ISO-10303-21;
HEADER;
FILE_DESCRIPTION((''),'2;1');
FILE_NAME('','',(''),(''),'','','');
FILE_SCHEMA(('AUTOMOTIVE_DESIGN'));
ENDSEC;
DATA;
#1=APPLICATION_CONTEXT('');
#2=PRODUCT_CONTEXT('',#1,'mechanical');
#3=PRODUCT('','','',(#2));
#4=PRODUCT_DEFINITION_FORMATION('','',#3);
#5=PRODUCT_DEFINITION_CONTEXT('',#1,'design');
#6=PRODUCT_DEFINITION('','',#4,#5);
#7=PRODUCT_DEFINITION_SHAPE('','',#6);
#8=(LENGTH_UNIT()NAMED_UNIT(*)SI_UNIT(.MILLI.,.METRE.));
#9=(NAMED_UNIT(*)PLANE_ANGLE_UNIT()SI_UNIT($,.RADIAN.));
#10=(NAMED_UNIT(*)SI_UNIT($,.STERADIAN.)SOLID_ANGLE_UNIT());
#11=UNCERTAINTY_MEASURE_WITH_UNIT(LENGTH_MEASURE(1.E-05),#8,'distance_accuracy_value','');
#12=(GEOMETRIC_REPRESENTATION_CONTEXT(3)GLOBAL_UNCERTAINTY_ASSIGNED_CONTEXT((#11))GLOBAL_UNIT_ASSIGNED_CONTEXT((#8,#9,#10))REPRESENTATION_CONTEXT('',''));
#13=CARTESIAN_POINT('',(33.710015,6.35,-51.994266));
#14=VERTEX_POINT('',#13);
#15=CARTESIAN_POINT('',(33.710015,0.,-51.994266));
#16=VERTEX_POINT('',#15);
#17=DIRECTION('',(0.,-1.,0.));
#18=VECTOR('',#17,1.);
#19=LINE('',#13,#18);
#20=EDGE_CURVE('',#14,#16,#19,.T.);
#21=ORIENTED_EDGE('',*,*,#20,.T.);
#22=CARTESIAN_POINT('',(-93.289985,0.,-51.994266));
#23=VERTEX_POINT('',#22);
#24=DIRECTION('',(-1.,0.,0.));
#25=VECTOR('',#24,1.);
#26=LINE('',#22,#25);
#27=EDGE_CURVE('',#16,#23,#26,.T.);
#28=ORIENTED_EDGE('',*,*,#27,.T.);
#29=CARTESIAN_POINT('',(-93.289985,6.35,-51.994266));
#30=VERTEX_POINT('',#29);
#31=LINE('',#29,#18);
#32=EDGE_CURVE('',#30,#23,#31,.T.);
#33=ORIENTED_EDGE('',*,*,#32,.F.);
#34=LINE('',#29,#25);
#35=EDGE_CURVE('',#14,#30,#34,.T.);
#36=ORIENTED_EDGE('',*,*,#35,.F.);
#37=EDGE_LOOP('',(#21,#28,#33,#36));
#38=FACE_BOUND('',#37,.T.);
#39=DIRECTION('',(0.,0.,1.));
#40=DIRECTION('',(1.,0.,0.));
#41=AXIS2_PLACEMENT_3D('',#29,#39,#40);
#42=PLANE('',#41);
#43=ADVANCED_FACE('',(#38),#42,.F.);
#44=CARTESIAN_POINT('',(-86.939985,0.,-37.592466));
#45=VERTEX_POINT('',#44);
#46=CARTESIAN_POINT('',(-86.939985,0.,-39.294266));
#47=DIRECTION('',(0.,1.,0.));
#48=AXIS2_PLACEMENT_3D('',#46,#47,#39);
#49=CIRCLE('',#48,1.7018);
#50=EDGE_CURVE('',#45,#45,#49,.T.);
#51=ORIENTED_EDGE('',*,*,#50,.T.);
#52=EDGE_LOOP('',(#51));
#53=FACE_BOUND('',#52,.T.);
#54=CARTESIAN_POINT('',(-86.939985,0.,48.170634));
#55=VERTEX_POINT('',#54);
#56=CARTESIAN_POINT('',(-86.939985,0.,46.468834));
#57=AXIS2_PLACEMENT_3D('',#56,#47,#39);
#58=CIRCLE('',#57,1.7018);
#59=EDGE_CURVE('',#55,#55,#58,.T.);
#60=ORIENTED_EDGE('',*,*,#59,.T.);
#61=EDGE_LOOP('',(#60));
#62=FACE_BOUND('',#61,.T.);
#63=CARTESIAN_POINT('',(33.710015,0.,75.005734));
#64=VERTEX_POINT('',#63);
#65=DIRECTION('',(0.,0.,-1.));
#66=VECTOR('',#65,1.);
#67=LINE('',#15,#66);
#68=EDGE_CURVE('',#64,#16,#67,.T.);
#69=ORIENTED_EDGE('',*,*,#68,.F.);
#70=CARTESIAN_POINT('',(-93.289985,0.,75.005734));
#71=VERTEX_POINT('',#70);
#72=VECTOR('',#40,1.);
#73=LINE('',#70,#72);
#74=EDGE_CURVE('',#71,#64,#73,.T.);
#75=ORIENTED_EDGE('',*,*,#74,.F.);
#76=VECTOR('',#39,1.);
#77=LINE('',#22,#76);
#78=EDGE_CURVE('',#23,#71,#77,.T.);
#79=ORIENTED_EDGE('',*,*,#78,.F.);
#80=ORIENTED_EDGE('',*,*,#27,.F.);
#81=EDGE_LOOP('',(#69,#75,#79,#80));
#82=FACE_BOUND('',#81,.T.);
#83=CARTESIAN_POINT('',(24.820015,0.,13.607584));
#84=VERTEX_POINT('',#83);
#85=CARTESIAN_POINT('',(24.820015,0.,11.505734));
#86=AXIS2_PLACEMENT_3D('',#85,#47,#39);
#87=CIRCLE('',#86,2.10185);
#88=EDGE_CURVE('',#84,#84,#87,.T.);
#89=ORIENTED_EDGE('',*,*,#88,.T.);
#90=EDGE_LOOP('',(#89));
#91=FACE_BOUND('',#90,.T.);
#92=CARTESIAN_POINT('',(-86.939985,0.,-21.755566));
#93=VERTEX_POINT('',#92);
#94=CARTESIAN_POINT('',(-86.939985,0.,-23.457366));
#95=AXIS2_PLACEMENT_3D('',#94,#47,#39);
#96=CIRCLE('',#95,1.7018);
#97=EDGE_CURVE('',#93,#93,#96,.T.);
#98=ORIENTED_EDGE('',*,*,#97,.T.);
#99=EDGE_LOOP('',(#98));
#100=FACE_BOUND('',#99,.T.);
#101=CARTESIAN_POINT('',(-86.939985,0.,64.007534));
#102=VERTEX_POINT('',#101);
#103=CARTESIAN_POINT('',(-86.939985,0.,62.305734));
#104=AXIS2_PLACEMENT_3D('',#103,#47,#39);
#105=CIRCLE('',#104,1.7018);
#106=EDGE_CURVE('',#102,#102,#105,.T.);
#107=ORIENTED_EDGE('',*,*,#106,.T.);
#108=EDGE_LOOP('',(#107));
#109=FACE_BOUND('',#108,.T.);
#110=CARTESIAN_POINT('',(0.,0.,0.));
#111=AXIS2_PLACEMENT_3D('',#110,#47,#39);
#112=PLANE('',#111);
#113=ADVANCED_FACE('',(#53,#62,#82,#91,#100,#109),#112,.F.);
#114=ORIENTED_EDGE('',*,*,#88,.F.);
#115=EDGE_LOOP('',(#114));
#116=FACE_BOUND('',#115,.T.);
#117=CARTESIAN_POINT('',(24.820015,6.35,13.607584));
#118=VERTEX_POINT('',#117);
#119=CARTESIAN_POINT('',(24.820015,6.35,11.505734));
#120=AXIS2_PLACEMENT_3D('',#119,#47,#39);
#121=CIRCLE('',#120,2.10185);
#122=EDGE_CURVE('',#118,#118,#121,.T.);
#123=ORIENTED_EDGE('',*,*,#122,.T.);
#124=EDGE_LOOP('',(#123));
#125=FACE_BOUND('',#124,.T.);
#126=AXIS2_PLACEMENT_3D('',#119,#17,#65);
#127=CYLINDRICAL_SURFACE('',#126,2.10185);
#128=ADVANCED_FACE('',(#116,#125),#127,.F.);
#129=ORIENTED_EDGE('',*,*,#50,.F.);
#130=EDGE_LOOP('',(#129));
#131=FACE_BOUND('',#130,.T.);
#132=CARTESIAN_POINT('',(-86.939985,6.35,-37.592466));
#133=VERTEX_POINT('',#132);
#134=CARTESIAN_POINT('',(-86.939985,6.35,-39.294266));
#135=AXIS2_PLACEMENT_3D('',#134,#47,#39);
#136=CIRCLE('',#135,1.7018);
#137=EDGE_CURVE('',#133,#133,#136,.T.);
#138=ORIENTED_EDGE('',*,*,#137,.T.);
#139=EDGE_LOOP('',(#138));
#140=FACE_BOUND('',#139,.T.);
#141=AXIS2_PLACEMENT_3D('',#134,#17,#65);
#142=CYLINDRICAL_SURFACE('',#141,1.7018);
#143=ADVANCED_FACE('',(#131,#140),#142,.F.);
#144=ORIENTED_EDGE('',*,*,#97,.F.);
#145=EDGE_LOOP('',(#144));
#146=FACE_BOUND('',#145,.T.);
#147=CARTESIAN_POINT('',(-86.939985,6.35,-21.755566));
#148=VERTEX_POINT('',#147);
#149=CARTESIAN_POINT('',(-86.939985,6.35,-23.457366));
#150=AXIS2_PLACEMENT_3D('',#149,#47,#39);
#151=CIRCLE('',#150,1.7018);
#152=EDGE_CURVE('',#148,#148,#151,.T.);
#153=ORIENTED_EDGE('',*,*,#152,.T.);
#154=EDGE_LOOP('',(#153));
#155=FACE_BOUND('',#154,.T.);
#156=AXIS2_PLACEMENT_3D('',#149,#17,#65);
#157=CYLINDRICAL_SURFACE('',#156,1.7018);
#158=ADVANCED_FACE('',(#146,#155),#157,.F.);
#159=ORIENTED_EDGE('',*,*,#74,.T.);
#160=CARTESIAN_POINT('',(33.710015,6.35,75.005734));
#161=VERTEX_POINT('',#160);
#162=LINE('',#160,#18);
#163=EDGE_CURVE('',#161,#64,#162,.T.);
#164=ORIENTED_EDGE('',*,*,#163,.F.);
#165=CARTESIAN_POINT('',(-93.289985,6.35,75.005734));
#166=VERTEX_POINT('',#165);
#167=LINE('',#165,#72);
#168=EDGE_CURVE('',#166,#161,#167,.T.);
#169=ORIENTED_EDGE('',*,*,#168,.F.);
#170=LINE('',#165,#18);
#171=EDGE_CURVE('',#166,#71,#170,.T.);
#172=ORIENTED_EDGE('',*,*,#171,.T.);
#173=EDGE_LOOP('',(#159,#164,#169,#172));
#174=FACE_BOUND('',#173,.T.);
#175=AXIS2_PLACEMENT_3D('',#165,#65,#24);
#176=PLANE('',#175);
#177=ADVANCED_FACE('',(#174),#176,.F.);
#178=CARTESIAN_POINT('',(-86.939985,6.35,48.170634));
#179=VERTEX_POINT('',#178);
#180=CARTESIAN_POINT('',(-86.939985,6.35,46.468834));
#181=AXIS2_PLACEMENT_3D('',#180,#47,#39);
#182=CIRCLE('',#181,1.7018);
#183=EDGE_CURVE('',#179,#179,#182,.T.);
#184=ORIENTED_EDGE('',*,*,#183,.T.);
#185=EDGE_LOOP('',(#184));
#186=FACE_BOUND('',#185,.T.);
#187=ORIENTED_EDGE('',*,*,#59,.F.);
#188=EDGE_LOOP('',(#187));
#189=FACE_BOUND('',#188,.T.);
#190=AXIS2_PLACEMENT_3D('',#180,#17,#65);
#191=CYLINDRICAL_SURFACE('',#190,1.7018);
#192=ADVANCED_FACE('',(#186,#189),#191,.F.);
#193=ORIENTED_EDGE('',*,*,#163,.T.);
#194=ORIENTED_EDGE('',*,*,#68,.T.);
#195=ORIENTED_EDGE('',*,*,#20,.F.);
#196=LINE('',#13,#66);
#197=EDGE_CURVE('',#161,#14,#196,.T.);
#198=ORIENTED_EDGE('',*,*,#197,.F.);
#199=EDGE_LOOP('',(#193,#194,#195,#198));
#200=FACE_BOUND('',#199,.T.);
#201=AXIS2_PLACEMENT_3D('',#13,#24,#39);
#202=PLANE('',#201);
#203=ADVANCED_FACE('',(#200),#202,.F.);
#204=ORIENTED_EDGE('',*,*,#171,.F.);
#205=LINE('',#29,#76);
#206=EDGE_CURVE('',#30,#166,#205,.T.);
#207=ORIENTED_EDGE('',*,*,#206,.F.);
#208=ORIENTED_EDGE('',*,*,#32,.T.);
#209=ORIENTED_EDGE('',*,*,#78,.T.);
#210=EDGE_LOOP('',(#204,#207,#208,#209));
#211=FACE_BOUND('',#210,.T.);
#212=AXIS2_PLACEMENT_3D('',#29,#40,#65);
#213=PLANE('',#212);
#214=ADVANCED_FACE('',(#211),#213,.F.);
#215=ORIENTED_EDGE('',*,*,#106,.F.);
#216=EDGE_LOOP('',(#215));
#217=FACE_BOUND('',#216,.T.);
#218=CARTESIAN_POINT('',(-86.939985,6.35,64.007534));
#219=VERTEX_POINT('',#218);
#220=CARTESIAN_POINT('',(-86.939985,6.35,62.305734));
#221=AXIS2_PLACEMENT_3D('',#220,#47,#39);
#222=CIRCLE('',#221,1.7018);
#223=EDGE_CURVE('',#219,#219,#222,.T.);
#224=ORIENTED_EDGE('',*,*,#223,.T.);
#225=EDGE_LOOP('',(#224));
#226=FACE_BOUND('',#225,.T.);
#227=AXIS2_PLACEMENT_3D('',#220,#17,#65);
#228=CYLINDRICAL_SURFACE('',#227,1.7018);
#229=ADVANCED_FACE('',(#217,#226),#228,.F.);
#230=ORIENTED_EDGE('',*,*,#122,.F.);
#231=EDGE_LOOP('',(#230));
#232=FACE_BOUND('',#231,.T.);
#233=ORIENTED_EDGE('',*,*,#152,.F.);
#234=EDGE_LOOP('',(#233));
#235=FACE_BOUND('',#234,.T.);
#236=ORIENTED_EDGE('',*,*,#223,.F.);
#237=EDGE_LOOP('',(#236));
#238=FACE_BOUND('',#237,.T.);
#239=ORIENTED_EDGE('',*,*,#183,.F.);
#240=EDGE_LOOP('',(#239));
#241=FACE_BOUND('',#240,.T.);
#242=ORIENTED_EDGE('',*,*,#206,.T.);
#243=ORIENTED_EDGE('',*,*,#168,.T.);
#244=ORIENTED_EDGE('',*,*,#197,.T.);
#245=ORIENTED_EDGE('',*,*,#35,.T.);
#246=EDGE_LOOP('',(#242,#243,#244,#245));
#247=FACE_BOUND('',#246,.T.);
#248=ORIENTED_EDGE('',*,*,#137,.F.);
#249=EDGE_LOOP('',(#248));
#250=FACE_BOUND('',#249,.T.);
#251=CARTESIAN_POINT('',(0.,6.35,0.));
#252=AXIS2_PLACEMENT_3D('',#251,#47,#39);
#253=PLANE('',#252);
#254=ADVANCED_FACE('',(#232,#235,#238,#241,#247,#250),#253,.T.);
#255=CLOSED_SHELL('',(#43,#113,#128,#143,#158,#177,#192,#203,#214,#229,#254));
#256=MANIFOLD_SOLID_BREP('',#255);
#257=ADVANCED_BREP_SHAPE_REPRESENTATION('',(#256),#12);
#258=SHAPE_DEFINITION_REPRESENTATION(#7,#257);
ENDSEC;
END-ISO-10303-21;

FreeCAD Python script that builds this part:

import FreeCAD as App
import Part
import Sketcher

V = App.Vector
Q = App.Units.Quantity


def add_polygon(sketch, points):
    """Adds a closed chain of lines whose ends are joined by coincident constraints."""
    first, n = sketch.GeometryCount, len(points)
    for a, b in zip(points, points[1:] + points[:1]):
        sketch.addGeometry(Part.LineSegment(App.Vector(*a, 0), App.Vector(*b, 0)), False)
    for i in range(n):
        sketch.addConstraint(Sketcher.Constraint("Coincident", first + i, 2, first + (i + 1) % n, 1))

doc = App.newDocument("Part")
params = doc.addObject("Spreadsheet::Sheet", "Params")
for row, (alias, value) in enumerate([
    ("sketch1_width", "5 in"),
    ("sketch1_diameter", "0.134 in"),
    ("pad1_length", "0.25 in"),
], start=1):
    params.set(f"A{row}", alias)
    params.set(f"B{row}", "=" + value)
    params.setAlias(f"B{row}", alias)

body = doc.addObject("PartDesign::Body", "Body")

sketch1 = doc.addObject("Sketcher::SketchObject", "Sketch")
body.addObject(sketch1)
sketch1.AttachmentSupport = (doc.XZ_Plane, [""])
sketch1.MapMode = "FlatFace"
add_polygon(sketch1, [(-93.3, -52), (-93.3, 75), (33.7, 75), (33.7, -52)])
sketch1.addGeometry(Part.Circle(V(-86.9, 62.3, 0), V(0, 0, 1), 1.7), False)
sketch1.addGeometry(Part.Circle(V(-86.9, 46.5, 0), V(0, 0, 1), 1.7), False)
sketch1.addGeometry(Part.Circle(V(-86.9, -23.5, 0), V(0, 0, 1), 1.7), False)
sketch1.addGeometry(Part.Circle(V(-86.9, -39.3, 0), V(0, 0, 1), 1.7), False)
sketch1.addGeometry(Part.Circle(V(24.8, 11.5, 0), V(0, 0, 1), 2.1), False)
sketch1.addConstraint([
    Sketcher.Constraint("Vertical", 0),
    Sketcher.Constraint("Horizontal", 1),
    Sketcher.Constraint("Vertical", 2),
    Sketcher.Constraint("Horizontal", 3),
    Sketcher.Constraint("Equal", 4, 5),
    Sketcher.Constraint("Equal", 5, 6),
    Sketcher.Constraint("Equal", 6, 7),
    Sketcher.Constraint("Vertical", 4, 3, 5, 3),
    Sketcher.Constraint("Vertical", 5, 3, 6, 3),
    Sketcher.Constraint("Vertical", 6, 3, 7, 3),
    Sketcher.Constraint("Equal", 3, 0),
    Sketcher.Constraint("DistanceX", 1, 1, 1, 2, Q("5 in")),
    Sketcher.Constraint("Diameter", 4, Q("0.134 in")),
    Sketcher.Constraint("DistanceY", 7, 3, 4, 3, Q("4 in")),
    Sketcher.Constraint("DistanceY", 8, 3, 4, 3, Q("2 in")),
    Sketcher.Constraint("Diameter", 8, Q("0.1655 in")),
    Sketcher.Constraint("DistanceX", 5, 3, 8, 3, Q("4.4 in")),
    Sketcher.Constraint("DistanceY", 4, 3, 0, 2, Q("0.5 in")),
    Sketcher.Constraint("DistanceX", 0, 2, 4, 3, Q("0.25 in")),
    Sketcher.Constraint("DistanceY", 6, 3, 5, 3, Q("2.753 in")),
    Sketcher.Constraint("DistanceY", 5, 3, 4, 3, Q("0.6235 in")),
    Sketcher.Constraint("DistanceX", 4, 3, -1, 1, Q("86.939985 mm")),
    Sketcher.Constraint("DistanceY", -1, 1, 4, 3, Q("62.305734 mm")),
])
sketch1.setExpression("Constraints[15]", "Params.sketch1_width")
sketch1.setExpression("Constraints[16]", "Params.sketch1_diameter")
pad1 = doc.addObject("PartDesign::Pad", "Pad")
body.addObject(pad1)
pad1.Profile = sketch1
pad1.setExpression("Length", "Params.pad1_length")
pad1.Reversed = True

doc.recompute()
